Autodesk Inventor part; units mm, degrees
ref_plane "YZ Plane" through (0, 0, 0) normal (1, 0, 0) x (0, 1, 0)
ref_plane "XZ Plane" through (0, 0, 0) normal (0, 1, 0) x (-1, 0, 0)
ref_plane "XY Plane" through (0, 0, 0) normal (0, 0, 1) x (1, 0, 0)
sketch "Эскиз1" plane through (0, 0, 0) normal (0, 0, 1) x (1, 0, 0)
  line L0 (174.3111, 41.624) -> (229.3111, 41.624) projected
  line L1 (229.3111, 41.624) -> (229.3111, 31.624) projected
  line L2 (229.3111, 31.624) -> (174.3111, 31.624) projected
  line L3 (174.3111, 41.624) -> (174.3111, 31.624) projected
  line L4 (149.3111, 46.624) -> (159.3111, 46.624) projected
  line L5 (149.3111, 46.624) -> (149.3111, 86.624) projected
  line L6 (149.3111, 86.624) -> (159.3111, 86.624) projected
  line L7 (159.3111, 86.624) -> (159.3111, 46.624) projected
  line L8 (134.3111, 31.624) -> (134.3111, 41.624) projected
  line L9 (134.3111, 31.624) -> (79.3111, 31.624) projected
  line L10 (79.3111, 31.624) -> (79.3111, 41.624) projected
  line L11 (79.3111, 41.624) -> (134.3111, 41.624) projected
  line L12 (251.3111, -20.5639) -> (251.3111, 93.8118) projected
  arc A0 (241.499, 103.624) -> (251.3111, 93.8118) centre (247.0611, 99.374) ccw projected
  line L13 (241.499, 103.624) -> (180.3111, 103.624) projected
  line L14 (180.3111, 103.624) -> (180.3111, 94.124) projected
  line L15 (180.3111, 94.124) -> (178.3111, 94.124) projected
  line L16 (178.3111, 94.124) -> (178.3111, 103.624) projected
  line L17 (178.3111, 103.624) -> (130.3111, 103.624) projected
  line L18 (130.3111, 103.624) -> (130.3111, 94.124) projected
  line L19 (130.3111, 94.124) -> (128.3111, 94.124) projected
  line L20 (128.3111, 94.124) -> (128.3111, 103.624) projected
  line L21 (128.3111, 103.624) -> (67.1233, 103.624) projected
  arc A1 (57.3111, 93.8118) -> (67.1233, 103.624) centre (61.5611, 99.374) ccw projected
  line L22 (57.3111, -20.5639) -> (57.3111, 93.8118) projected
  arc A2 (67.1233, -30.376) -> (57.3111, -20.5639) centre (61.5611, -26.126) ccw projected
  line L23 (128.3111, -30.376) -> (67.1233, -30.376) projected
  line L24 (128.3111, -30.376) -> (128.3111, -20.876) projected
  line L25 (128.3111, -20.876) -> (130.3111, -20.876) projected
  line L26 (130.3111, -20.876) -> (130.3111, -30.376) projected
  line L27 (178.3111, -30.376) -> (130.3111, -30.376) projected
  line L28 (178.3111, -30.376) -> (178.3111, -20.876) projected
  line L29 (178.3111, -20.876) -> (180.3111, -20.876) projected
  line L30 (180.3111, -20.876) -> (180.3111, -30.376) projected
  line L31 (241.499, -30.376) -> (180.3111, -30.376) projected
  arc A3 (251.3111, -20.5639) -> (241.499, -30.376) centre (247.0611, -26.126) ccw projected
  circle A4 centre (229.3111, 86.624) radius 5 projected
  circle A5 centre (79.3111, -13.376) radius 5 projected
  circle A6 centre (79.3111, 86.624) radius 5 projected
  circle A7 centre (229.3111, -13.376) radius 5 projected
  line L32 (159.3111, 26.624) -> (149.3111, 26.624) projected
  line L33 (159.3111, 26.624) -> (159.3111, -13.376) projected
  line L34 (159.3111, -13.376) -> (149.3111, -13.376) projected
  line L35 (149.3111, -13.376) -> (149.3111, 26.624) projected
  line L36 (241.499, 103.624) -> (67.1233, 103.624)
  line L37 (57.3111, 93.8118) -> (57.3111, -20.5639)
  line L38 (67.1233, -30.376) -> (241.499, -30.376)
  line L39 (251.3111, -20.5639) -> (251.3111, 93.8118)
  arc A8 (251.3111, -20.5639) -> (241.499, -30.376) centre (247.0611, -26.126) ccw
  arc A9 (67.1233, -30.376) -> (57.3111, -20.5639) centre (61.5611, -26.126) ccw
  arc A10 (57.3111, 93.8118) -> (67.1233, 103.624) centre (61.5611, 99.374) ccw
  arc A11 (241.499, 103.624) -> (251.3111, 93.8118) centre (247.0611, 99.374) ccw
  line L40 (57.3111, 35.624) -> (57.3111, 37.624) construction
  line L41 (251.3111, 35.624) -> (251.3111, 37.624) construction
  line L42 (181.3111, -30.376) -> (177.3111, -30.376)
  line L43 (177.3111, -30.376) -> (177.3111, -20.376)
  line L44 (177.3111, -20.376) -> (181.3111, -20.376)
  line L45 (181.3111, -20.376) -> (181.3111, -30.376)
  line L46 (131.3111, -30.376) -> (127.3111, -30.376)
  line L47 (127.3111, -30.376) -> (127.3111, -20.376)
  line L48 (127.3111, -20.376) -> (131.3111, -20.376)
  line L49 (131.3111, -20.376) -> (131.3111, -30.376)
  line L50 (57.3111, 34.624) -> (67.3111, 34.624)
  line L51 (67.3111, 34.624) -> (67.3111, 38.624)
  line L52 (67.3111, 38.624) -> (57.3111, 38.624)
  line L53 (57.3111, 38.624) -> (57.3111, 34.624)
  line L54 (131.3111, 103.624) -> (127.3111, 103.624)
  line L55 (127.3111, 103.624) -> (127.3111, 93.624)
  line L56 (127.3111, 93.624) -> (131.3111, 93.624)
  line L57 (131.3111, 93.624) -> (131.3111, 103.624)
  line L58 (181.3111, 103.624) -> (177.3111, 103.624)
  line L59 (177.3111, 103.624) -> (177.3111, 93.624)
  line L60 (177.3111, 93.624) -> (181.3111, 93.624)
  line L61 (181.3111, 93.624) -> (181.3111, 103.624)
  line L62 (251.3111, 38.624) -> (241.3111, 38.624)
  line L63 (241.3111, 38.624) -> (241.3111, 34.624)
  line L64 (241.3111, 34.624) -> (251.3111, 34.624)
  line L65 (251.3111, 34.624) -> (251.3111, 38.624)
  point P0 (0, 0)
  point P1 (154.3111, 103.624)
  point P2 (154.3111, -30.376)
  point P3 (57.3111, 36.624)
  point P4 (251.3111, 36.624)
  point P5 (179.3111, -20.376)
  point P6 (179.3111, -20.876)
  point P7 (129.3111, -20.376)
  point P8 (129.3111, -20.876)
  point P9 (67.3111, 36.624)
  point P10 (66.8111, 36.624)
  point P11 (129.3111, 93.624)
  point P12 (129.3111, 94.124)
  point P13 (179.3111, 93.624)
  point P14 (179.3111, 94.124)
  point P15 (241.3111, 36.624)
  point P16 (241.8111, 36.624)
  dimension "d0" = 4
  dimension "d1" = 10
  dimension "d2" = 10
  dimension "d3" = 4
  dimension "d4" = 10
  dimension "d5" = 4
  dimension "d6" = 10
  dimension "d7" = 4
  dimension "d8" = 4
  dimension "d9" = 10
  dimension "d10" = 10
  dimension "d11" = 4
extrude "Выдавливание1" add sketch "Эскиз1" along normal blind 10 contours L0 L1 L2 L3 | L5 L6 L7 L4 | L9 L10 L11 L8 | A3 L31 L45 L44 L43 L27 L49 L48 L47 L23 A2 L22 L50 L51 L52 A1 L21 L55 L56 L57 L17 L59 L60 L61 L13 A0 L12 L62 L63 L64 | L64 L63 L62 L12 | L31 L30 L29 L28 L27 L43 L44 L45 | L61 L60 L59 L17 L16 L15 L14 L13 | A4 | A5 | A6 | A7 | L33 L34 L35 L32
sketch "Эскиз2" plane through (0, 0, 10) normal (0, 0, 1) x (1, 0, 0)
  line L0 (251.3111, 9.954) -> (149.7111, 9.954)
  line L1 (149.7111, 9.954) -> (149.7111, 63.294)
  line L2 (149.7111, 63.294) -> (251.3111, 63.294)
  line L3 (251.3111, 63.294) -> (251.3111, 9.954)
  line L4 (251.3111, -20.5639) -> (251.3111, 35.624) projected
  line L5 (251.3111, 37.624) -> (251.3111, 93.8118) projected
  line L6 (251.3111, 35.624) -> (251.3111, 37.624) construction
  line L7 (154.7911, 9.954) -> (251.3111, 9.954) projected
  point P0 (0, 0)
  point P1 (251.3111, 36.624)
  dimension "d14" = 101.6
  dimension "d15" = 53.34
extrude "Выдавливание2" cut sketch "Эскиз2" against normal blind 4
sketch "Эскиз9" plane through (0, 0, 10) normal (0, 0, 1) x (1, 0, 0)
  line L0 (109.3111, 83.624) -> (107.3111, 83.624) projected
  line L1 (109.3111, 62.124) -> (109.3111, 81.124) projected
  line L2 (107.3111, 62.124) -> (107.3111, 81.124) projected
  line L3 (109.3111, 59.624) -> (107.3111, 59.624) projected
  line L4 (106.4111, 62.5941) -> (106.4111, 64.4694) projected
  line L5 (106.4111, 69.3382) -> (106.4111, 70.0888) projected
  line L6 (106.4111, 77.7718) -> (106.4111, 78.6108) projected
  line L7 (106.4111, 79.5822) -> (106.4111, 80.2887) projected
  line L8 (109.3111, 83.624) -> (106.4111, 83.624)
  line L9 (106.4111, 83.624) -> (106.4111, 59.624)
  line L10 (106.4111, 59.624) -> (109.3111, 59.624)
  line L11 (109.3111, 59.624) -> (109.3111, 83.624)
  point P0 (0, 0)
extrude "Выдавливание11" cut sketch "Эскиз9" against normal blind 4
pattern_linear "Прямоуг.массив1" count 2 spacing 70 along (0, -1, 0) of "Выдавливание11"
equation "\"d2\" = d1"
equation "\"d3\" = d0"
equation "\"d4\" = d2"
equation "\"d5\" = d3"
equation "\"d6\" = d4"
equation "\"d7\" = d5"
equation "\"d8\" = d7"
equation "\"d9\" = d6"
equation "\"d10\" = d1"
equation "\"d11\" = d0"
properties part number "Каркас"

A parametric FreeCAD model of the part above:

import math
import FreeCAD as App
import Part
import Sketcher
from FreeCAD import Vector

doc = App.newDocument("Part")
body = doc.addObject("PartDesign::Body", "Body")

# Sketch on XY plane
sketch1 = body.newObject("Sketcher::SketchObject", "Sketch")
sketch1.AttachmentSupport = (doc.getObject("XY_Plane"), [""])
sketch1.MapMode = "FlatFace"
sketch1.addGeometry([
    Part.ArcOfCircle(Part.Circle(Vector(247.1, -26.1, 0), Vector(0, 0, 1), 7), math.radians(53), math.radians(217)),  # 0
    Part.LineSegment(Vector(251.3, -20.6, 0), Vector(251.3, 93.8, 0)),  # 1
    Part.ArcOfCircle(Part.Circle(Vector(247.1, 99.4, 0), Vector(0, 0, 1), 7), math.radians(143), math.radians(307)),  # 2
    Part.LineSegment(Vector(241.5, 103.6, 0), Vector(180.3, 103.6, 0)),  # 3
    Part.LineSegment(Vector(180.3, 103.6, 0), Vector(180.3, 94.1, 0)),  # 4
    Part.LineSegment(Vector(180.3, 94.1, 0), Vector(178.3, 94.1, 0)),  # 5
    Part.LineSegment(Vector(178.3, 94.1, 0), Vector(178.3, 103.6, 0)),  # 6
    Part.LineSegment(Vector(178.3, 103.6, 0), Vector(131.3, 103.6, 0)),  # 7
    Part.LineSegment(Vector(131.3, 103.6, 0), Vector(131.3, 93.6, 0)),  # 8
    Part.LineSegment(Vector(131.3, 93.6, 0), Vector(127.3, 93.6, 0)),  # 9
    Part.LineSegment(Vector(127.3, 93.6, 0), Vector(127.3, 103.6, 0)),  # 10
    Part.LineSegment(Vector(127.3, 103.6, 0), Vector(67.1, 103.6, 0)),  # 11
    Part.ArcOfCircle(Part.Circle(Vector(61.6, 99.4, 0), Vector(0, 0, 1), 7), math.radians(-127), math.radians(37)),  # 12
    Part.LineSegment(Vector(57.3, 93.8, 0), Vector(57.3, 38.6, 0)),  # 13
    Part.LineSegment(Vector(57.3, 38.6, 0), Vector(67.3, 38.6, 0)),  # 14
    Part.LineSegment(Vector(67.3, 38.6, 0), Vector(67.3, 34.6, 0)),  # 15
    Part.LineSegment(Vector(67.3, 34.6, 0), Vector(57.3, 34.6, 0)),  # 16
    Part.LineSegment(Vector(57.3, 34.6, 0), Vector(57.3, -20.6, 0)),  # 17
    Part.ArcOfCircle(Part.Circle(Vector(61.6, -26.1, 0), Vector(0, 0, 1), 7), math.radians(-37), math.radians(127)),  # 18
    Part.LineSegment(Vector(67.1, -30.4, 0), Vector(127.3, -30.4, 0)),  # 19
    Part.LineSegment(Vector(127.3, -30.4, 0), Vector(127.3, -20.4, 0)),  # 20
    Part.LineSegment(Vector(127.3, -20.4, 0), Vector(131.3, -20.4, 0)),  # 21
    Part.LineSegment(Vector(131.3, -20.4, 0), Vector(131.3, -30.4, 0)),  # 22
    Part.LineSegment(Vector(131.3, -30.4, 0), Vector(178.3, -30.4, 0)),  # 23
    Part.LineSegment(Vector(178.3, -30.4, 0), Vector(178.3, -20.9, 0)),  # 24
    Part.LineSegment(Vector(178.3, -20.9, 0), Vector(180.3, -20.9, 0)),  # 25
    Part.LineSegment(Vector(180.3, -20.9, 0), Vector(180.3, -30.4, 0)),  # 26
    Part.LineSegment(Vector(180.3, -30.4, 0), Vector(241.5, -30.4, 0)),  # 27
], False)
sketch1.addConstraint([
    Sketcher.Constraint("Coincident", 0, 1, 1, 1),
    Sketcher.Constraint("Coincident", 1, 2, 2, 2),
    Sketcher.Constraint("Coincident", 2, 1, 3, 1),
    Sketcher.Constraint("Coincident", 3, 2, 4, 1),
    Sketcher.Constraint("Coincident", 4, 2, 5, 1),
    Sketcher.Constraint("Coincident", 5, 2, 6, 1),
    Sketcher.Constraint("Coincident", 6, 2, 7, 1),
    Sketcher.Constraint("Coincident", 7, 2, 8, 1),
    Sketcher.Constraint("Coincident", 8, 2, 9, 1),
    Sketcher.Constraint("Coincident", 9, 2, 10, 1),
    Sketcher.Constraint("Coincident", 10, 2, 11, 1),
    Sketcher.Constraint("Coincident", 11, 2, 12, 2),
    Sketcher.Constraint("Coincident", 12, 1, 13, 1),
    Sketcher.Constraint("Coincident", 13, 2, 14, 1),
    Sketcher.Constraint("Coincident", 14, 2, 15, 1),
    Sketcher.Constraint("Coincident", 15, 2, 16, 1),
    Sketcher.Constraint("Coincident", 16, 2, 17, 1),
    Sketcher.Constraint("Coincident", 17, 2, 18, 2),
    Sketcher.Constraint("Coincident", 18, 1, 19, 1),
    Sketcher.Constraint("Coincident", 19, 2, 20, 1),
    Sketcher.Constraint("Coincident", 20, 2, 21, 1),
    Sketcher.Constraint("Coincident", 21, 2, 22, 1),
    Sketcher.Constraint("Coincident", 22, 2, 23, 1),
    Sketcher.Constraint("Coincident", 23, 2, 24, 1),
    Sketcher.Constraint("Coincident", 24, 2, 25, 1),
    Sketcher.Constraint("Coincident", 25, 2, 26, 1),
    Sketcher.Constraint("Coincident", 26, 2, 27, 1),
    Sketcher.Constraint("Coincident", 27, 2, 0, 2),
    Sketcher.Constraint("Vertical", 1),
    Sketcher.Constraint("Horizontal", 3),
    Sketcher.Constraint("Vertical", 4),
    Sketcher.Constraint("Horizontal", 5),
    Sketcher.Constraint("Vertical", 6),
    Sketcher.Constraint("Horizontal", 7),
    Sketcher.Constraint("Vertical", 8),
    Sketcher.Constraint("Horizontal", 9),
    Sketcher.Constraint("Vertical", 10),
    Sketcher.Constraint("Horizontal", 11),
    Sketcher.Constraint("Vertical", 13),
    Sketcher.Constraint("Horizontal", 14),
    Sketcher.Constraint("Vertical", 15),
    Sketcher.Constraint("Horizontal", 16),
    Sketcher.Constraint("Vertical", 17),
    Sketcher.Constraint("Horizontal", 19),
    Sketcher.Constraint("Vertical", 20),
    Sketcher.Constraint("Horizontal", 21),
    Sketcher.Constraint("Vertical", 22),
    Sketcher.Constraint("Horizontal", 23),
    Sketcher.Constraint("Vertical", 24),
    Sketcher.Constraint("Horizontal", 25),
    Sketcher.Constraint("Vertical", 26),
    Sketcher.Constraint("Horizontal", 27),
    Sketcher.Constraint("Equal", 0, 2),
    Sketcher.Constraint("Equal", 2, 12),
    Sketcher.Constraint("Equal", 12, 18),
    Sketcher.Constraint("Horizontal", 2, 3, 12, 3),
    Sketcher.Constraint("Horizontal", 0, 3, 18, 3),
    Sketcher.Constraint("Horizontal", 3, 2, 6, 2),
    Sketcher.Constraint("Horizontal", 7, 2, 10, 2),
    Sketcher.Constraint("Horizontal", 1, 2, 12, 1),
    Sketcher.Constraint("Horizontal", 0, 1, 17, 2),
    Sketcher.Constraint("Horizontal", 19, 2, 22, 2),
    Sketcher.Constraint("Horizontal", 23, 2, 26, 2),
    Sketcher.Constraint("Vertical", 0, 3, 2, 3),
    Sketcher.Constraint("Vertical", 12, 3, 18, 3),
    Sketcher.Constraint("Vertical", 11, 2, 18, 1),
    Sketcher.Constraint("Vertical", 10, 2, 19, 2),
    Sketcher.Constraint("Vertical", 8, 2, 21, 2),
    Sketcher.Constraint("Vertical", 6, 2, 23, 2),
    Sketcher.Constraint("Vertical", 4, 2, 25, 2),
    Sketcher.Constraint("Equal", 16, 8),
    Sketcher.Constraint("Equal", 21, 15),
    Sketcher.Constraint("Equal", 13, 17),
    Sketcher.Constraint("Equal", 10, 20),
    Sketcher.Constraint("Equal", 6, 24),
    Sketcher.Constraint("DistanceX", 9, 2, 9, 1, 4.0),
    Sketcher.Constraint("DistanceX", 14, 1, 14, 2, 10.0),
    Sketcher.Constraint("Radius", 0, 7.0),
    Sketcher.Constraint("DistanceX", 5, 2, 5, 1, 2.0),
    Sketcher.Constraint("DistanceX", 7, 2, 7, 1, 47.0),
    Sketcher.Constraint("DistanceY", 4, 2, 4, 1, 9.5),
    Sketcher.Constraint("DistanceX", 3, 2, 1, 2, 71.0),
    Sketcher.Constraint("DistanceX", 12, 1, 9, 2, 70.0),
    Sketcher.Constraint("DistanceY", 13, 2, 11, 2, 65.0),
    Sketcher.Constraint("DistanceY", 0, 3, 2, 3, 125.5),
    Sketcher.Constraint("DistanceX", 12, 3, 2, 3, 185.5),
    Sketcher.Constraint("DistanceX", -1, 1, 0, 3, 247.061),
    Sketcher.Constraint("DistanceY", 0, 3, -1, 1, 26.126),
])
pad1 = body.newObject("PartDesign::Pad", "Pad")
pad1.Profile = sketch1
pad1.Length = 10

# Sketch on XY plane
sketch2 = body.newObject("Sketcher::SketchObject", "Sketch001")
sketch2.AttachmentSupport = (doc.getObject("XY_Plane"), [""])
sketch2.MapMode = "FlatFace"
sketch2.AttachmentOffset = App.Placement(Vector(0, 0, 10), App.Rotation())
sketch2.addGeometry([
    Part.LineSegment(Vector(150, 10, 0), Vector(251, 10, 0)),
    Part.LineSegment(Vector(251, 10, 0), Vector(251, 63, 0)),
    Part.LineSegment(Vector(251, 63, 0), Vector(150, 63, 0)),
    Part.LineSegment(Vector(150, 63, 0), Vector(150, 10, 0)),
], False)
sketch2.addConstraint([
    Sketcher.Constraint("Coincident", 0, 2, 1, 1),
    Sketcher.Constraint("Coincident", 1, 2, 2, 1),
    Sketcher.Constraint("Coincident", 2, 2, 3, 1),
    Sketcher.Constraint("Coincident", 3, 2, 0, 1),
    Sketcher.Constraint("Horizontal", 0),
    Sketcher.Constraint("Vertical", 1),
    Sketcher.Constraint("Horizontal", 2),
    Sketcher.Constraint("Vertical", 3),
    Sketcher.Constraint("DistanceX", 0, 1, 0, 2, 101.6),
    Sketcher.Constraint("DistanceY", 1, 1, 1, 2, 53.34),
    Sketcher.Constraint("DistanceX", -1, 1, 0, 2, 251.311),
    Sketcher.Constraint("DistanceY", -1, 1, 0, 2, 9.954),
])
pocket1 = body.newObject("PartDesign::Pocket", "Pocket")
pocket1.Profile = sketch2
pocket1.Length = 4

# Sketch on XY plane
sketch3 = body.newObject("Sketcher::SketchObject", "Sketch002")
sketch3.AttachmentSupport = (doc.getObject("XY_Plane"), [""])
sketch3.MapMode = "FlatFace"
sketch3.AttachmentOffset = App.Placement(Vector(0, 0, 10), App.Rotation())
sketch3.addGeometry([
    Part.LineSegment(Vector(109.3, 59.6, 0), Vector(109.3, 83.6, 0)),
    Part.LineSegment(Vector(109.3, 83.6, 0), Vector(106.4, 83.6, 0)),
    Part.LineSegment(Vector(106.4, 83.6, 0), Vector(106.4, 59.6, 0)),
    Part.LineSegment(Vector(106.4, 59.6, 0), Vector(109.3, 59.6, 0)),
], False)
sketch3.addConstraint([
    Sketcher.Constraint("Coincident", 0, 2, 1, 1),
    Sketcher.Constraint("Coincident", 1, 2, 2, 1),
    Sketcher.Constraint("Coincident", 2, 2, 3, 1),
    Sketcher.Constraint("Coincident", 3, 2, 0, 1),
    Sketcher.Constraint("Vertical", 0),
    Sketcher.Constraint("Horizontal", 1),
    Sketcher.Constraint("Vertical", 2),
    Sketcher.Constraint("Horizontal", 3),
    Sketcher.Constraint("DistanceY", 0, 1, 0, 2, 24.0),
    Sketcher.Constraint("DistanceX", 1, 2, 1, 1, 2.9),
    Sketcher.Constraint("DistanceX", -1, 1, 0, 2, 109.311),
    Sketcher.Constraint("DistanceY", -1, 1, 0, 2, 83.624),
])
pocket2 = body.newObject("PartDesign::Pocket", "Pocket001")
pocket2.Profile = sketch3
pocket2.Length = 4
doc.recompute()

linearpattern = body.newObject("PartDesign::LinearPattern", "LinearPattern")
linearpattern.Originals = [pocket2]
linearpattern.Direction = (doc.getObject("Y_Axis"), [""])
linearpattern.Mode = "offset"
linearpattern.Offset = 70
linearpattern.Occurrences = 2
linearpattern.Reversed = True
body.Tip = linearpattern

doc.recompute()
